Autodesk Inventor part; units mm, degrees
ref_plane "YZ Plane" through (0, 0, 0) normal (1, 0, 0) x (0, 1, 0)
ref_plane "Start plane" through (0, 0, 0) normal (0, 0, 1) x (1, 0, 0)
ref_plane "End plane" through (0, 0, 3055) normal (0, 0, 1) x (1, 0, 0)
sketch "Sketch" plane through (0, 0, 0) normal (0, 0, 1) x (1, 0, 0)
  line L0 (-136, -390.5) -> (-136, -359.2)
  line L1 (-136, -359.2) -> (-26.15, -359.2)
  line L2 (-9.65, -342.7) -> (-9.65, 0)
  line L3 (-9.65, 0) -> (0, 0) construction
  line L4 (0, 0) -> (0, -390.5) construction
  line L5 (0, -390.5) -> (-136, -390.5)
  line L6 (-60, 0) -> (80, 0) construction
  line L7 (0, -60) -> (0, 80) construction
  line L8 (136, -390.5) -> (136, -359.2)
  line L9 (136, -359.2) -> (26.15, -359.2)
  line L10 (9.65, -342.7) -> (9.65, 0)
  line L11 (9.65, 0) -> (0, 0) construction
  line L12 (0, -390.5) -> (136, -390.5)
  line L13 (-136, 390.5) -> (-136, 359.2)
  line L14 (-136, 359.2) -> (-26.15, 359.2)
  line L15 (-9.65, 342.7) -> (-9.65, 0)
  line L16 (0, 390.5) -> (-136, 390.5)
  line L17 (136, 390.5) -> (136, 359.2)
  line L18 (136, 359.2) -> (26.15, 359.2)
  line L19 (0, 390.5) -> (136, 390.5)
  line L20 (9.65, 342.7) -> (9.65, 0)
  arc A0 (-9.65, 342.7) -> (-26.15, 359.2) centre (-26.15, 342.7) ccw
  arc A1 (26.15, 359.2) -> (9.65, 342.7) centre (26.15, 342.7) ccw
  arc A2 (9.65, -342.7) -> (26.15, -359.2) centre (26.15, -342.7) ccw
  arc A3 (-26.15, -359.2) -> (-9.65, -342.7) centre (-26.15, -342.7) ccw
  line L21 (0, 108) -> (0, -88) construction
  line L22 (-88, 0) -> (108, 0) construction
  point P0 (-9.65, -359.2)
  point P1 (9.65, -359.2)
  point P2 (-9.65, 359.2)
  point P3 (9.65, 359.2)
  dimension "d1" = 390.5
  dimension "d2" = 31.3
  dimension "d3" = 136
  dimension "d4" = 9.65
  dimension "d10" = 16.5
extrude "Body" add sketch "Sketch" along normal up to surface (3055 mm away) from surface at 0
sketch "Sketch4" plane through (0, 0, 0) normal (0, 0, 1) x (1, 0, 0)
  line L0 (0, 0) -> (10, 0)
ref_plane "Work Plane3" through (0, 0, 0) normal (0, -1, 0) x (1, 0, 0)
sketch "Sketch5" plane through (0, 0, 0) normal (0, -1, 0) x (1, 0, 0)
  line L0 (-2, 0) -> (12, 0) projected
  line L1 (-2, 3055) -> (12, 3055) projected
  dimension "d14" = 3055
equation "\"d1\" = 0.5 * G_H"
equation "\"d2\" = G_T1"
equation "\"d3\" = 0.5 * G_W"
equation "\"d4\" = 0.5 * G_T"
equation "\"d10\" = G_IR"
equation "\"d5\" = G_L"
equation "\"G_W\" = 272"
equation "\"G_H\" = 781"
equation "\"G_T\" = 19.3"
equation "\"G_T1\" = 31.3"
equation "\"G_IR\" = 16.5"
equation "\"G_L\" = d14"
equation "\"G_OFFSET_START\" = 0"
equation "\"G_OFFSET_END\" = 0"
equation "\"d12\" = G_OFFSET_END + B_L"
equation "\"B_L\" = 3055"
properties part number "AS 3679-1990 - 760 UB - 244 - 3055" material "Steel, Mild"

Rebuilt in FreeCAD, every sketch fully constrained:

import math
import FreeCAD as App
import Part
import Sketcher

V = App.Vector

doc = App.newDocument("Part")
body = doc.addObject("PartDesign::Body", "Body")

# Sketch on XY plane
sketch1 = doc.addObject("Sketcher::SketchObject", "Sketch")
body.addObject(sketch1)
sketch1.AttachmentSupport = (doc.XY_Plane, [""])
sketch1.MapMode = "FlatFace"
sketch1.addGeometry(Part.LineSegment(V(-136, -359.2, 0), V(-136, -390.5, 0)), False)
sketch1.addGeometry(Part.LineSegment(V(-136, -390.5, 0), V(136, -390.5, 0)), False)
sketch1.addGeometry(Part.LineSegment(V(136, -390.5, 0), V(136, -359.2, 0)), False)
sketch1.addGeometry(Part.LineSegment(V(136, -359.2, 0), V(26.15, -359.2, 0)), False)
sketch1.addGeometry(Part.ArcOfCircle(Part.Circle(V(26.15, -342.7, 0), V(0, 0, 1), 16.5), math.radians(180), math.radians(270)), False)
sketch1.addGeometry(Part.LineSegment(V(9.65, -342.7, 0), V(9.65, 342.7, 0)), False)
sketch1.addGeometry(Part.ArcOfCircle(Part.Circle(V(26.15, 342.7, 0), V(0, 0, 1), 16.5), math.radians(90), math.radians(180)), False)
sketch1.addGeometry(Part.LineSegment(V(26.15, 359.2, 0), V(136, 359.2, 0)), False)
sketch1.addGeometry(Part.LineSegment(V(136, 359.2, 0), V(136, 390.5, 0)), False)
sketch1.addGeometry(Part.LineSegment(V(136, 390.5, 0), V(-136, 390.5, 0)), False)
sketch1.addGeometry(Part.LineSegment(V(-136, 390.5, 0), V(-136, 359.2, 0)), False)
sketch1.addGeometry(Part.LineSegment(V(-136, 359.2, 0), V(-26.15, 359.2, 0)), False)
sketch1.addGeometry(Part.ArcOfCircle(Part.Circle(V(-26.15, 342.7, 0), V(0, 0, 1), 16.5), math.radians(0), math.radians(90)), False)
sketch1.addGeometry(Part.LineSegment(V(-9.65, 342.7, 0), V(-9.65, -342.7, 0)), False)
sketch1.addGeometry(Part.ArcOfCircle(Part.Circle(V(-26.15, -342.7, 0), V(0, 0, 1), 16.5), math.radians(-90), math.radians(0)), False)
sketch1.addGeometry(Part.LineSegment(V(-26.15, -359.2, 0), V(-136, -359.2, 0)), False)
sketch1.addConstraint(Sketcher.Constraint("Coincident", 0, 2, 1, 1))
sketch1.addConstraint(Sketcher.Constraint("Coincident", 1, 2, 2, 1))
sketch1.addConstraint(Sketcher.Constraint("Coincident", 2, 2, 3, 1))
sketch1.addConstraint(Sketcher.Constraint("Tangent", 3, 2, 4, 2))
sketch1.addConstraint(Sketcher.Constraint("Tangent", 4, 1, 5, 1))
sketch1.addConstraint(Sketcher.Constraint("Tangent", 5, 2, 6, 2))
sketch1.addConstraint(Sketcher.Constraint("Tangent", 6, 1, 7, 1))
sketch1.addConstraint(Sketcher.Constraint("Coincident", 7, 2, 8, 1))
sketch1.addConstraint(Sketcher.Constraint("Coincident", 8, 2, 9, 1))
sketch1.addConstraint(Sketcher.Constraint("Coincident", 9, 2, 10, 1))
sketch1.addConstraint(Sketcher.Constraint("Coincident", 10, 2, 11, 1))
sketch1.addConstraint(Sketcher.Constraint("Tangent", 11, 2, 12, 2))
sketch1.addConstraint(Sketcher.Constraint("Tangent", 12, 1, 13, 1))
sketch1.addConstraint(Sketcher.Constraint("Tangent", 13, 2, 14, 2))
sketch1.addConstraint(Sketcher.Constraint("Tangent", 14, 1, 15, 1))
sketch1.addConstraint(Sketcher.Constraint("Coincident", 15, 2, 0, 1))
sketch1.addConstraint(Sketcher.Constraint("Vertical", 0))
sketch1.addConstraint(Sketcher.Constraint("Horizontal", 1))
sketch1.addConstraint(Sketcher.Constraint("Vertical", 2))
sketch1.addConstraint(Sketcher.Constraint("Horizontal", 3))
sketch1.addConstraint(Sketcher.Constraint("Vertical", 5))
sketch1.addConstraint(Sketcher.Constraint("Horizontal", 7))
sketch1.addConstraint(Sketcher.Constraint("Vertical", 8))
sketch1.addConstraint(Sketcher.Constraint("Horizontal", 9))
sketch1.addConstraint(Sketcher.Constraint("Vertical", 10))
sketch1.addConstraint(Sketcher.Constraint("Horizontal", 11))
sketch1.addConstraint(Sketcher.Constraint("Vertical", 13))
sketch1.addConstraint(Sketcher.Constraint("Horizontal", 15))
sketch1.addConstraint(Sketcher.Constraint("Equal", 4, 6))
sketch1.addConstraint(Sketcher.Constraint("Equal", 6, 12))
sketch1.addConstraint(Sketcher.Constraint("Equal", 12, 14))
sketch1.addConstraint(Sketcher.Constraint("Symmetric", 4, 3, 12, 3, -1, 1))
sketch1.addConstraint(Sketcher.Constraint("Symmetric", 0, 2, 8, 2, -1, 1))
sketch1.addConstraint(Sketcher.Constraint("Symmetric", 7, 2, 10, 2, -2))
sketch1.addConstraint(Sketcher.Constraint("Symmetric", 2, 2, 15, 2, -2))
sketch1.addConstraint(Sketcher.Constraint("Radius", 4, 16.5))
sketch1.addConstraint(Sketcher.Constraint("DistanceY", 0, 2, 0, 1, 31.3))
sketch1.addConstraint(Sketcher.Constraint("DistanceX", 0, 2, -1, 1, 136.0))
sketch1.addConstraint(Sketcher.Constraint("DistanceY", 0, 2, -1, 1, 390.5))
sketch1.addConstraint(Sketcher.Constraint("DistanceX", -1, 1, 4, 1, 9.65))
pad1 = doc.addObject("PartDesign::Pad", "Pad")
body.addObject(pad1)
pad1.Profile = sketch1
pad1.Length = 3055

doc.recompute()
